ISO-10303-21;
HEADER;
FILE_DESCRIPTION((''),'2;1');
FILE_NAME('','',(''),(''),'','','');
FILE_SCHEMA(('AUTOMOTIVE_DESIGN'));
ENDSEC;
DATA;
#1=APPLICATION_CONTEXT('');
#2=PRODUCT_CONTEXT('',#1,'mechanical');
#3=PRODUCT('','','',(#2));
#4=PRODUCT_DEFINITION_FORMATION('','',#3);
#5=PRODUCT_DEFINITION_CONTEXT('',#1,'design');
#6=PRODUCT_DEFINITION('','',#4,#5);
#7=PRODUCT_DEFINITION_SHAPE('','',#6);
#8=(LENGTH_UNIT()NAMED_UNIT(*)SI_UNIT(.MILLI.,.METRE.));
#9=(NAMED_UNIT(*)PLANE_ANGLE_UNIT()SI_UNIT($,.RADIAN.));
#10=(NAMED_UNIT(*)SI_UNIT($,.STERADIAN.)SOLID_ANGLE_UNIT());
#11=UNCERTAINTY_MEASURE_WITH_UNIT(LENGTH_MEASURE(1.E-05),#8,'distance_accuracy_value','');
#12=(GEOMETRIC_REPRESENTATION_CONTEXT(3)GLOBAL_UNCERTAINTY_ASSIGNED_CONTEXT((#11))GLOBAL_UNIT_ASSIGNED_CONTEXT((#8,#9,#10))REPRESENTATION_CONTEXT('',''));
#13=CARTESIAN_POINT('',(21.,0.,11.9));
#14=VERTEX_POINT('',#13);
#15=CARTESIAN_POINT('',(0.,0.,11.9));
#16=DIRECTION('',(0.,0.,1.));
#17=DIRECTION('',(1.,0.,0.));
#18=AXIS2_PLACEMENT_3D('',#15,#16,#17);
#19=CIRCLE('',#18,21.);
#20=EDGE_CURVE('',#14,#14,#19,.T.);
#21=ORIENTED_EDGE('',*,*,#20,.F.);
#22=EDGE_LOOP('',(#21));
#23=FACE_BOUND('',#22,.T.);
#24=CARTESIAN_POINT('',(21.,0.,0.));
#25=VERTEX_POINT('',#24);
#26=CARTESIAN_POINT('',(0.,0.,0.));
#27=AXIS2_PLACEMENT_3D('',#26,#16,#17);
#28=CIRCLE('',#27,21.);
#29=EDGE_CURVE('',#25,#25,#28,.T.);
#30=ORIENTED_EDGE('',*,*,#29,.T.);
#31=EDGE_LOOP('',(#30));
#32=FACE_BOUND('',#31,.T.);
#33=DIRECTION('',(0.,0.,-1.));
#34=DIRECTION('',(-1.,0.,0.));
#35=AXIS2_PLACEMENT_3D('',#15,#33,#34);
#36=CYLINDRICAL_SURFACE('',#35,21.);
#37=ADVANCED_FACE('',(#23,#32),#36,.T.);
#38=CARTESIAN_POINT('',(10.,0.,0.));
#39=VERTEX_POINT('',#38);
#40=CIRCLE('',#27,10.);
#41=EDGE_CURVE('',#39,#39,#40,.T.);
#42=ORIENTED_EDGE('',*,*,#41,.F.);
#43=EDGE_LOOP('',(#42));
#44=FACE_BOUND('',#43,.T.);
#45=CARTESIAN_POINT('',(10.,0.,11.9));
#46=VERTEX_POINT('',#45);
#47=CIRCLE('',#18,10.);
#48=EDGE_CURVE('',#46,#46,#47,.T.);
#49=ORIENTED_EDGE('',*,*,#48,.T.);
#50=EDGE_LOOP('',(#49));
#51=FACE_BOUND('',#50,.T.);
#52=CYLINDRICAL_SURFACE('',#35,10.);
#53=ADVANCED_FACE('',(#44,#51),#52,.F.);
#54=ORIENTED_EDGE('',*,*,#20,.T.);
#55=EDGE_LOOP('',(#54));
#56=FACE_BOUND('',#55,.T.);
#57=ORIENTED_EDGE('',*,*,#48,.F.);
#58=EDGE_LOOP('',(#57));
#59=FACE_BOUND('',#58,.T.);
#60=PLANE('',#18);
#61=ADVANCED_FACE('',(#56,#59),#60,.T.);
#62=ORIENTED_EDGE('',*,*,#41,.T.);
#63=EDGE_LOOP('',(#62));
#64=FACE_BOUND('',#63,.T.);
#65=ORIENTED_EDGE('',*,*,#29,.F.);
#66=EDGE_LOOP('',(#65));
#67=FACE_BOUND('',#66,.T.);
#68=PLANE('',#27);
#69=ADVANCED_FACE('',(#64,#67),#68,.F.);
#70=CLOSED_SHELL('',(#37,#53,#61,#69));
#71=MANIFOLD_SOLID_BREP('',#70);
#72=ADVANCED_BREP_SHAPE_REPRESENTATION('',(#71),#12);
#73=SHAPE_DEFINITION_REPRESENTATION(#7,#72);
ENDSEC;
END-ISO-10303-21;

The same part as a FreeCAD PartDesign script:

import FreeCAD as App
import Part
import Sketcher

V = App.Vector
Q = App.Units.Quantity

doc = App.newDocument("Part")
body = doc.addObject("PartDesign::Body", "Body")

# Sketch on XY plane
sketch1 = doc.addObject("Sketcher::SketchObject", "Sketch")
body.addObject(sketch1)
sketch1.AttachmentSupport = (doc.XY_Plane, [""])
sketch1.MapMode = "FlatFace"
sketch1.addGeometry([
    Part.Circle(V(0, 0, 0), V(0, 0, 1), 21),
    Part.Circle(V(0, 0, 0), V(0, 0, 1), 10),
], False)
sketch1.addConstraint([
    Sketcher.Constraint("Coincident", 0, 3, -1, 1),
    Sketcher.Constraint("Coincident", 1, 3, -1, 1),
    Sketcher.Constraint("Diameter", 0, Q("42 mm")),
    Sketcher.Constraint("Diameter", 1, Q("20 mm")),
])
pad1 = doc.addObject("PartDesign::Pad", "Pad")
body.addObject(pad1)
pad1.Profile = sketch1
pad1.Length = 11.9

doc.recompute()
